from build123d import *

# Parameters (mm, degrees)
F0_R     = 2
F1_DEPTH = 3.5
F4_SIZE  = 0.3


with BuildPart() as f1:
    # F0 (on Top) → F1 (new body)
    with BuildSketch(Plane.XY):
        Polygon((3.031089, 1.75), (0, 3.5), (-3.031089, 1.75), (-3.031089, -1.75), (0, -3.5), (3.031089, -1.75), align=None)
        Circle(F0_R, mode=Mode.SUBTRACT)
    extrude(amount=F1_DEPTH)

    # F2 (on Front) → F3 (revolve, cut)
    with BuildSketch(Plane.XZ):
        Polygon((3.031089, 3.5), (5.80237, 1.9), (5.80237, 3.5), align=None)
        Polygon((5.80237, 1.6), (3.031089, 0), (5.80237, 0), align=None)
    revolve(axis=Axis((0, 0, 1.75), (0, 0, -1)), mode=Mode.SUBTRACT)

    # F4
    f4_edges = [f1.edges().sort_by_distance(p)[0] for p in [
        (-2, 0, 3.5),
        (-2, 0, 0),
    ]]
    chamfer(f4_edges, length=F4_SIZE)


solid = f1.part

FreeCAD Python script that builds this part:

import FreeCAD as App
import Part
import Sketcher

V = App.Vector
Q = App.Units.Quantity


def edges_at(feature, points):
    """Names of the edges that pass closest to the given points."""
    edges = feature.Shape.Edges
    near = lambda p: min(range(len(edges)), key=lambda i: edges[i].distToShape(Part.Vertex(*p))[0])
    return sorted({f"Edge{near(p) + 1}" for p in points})


def add_polygon(sketch, points):
    """Adds a closed chain of lines whose ends are joined by coincident constraints."""
    first, n = sketch.GeometryCount, len(points)
    for a, b in zip(points, points[1:] + points[:1]):
        sketch.addGeometry(Part.LineSegment(App.Vector(*a, 0), App.Vector(*b, 0)), False)
    for i in range(n):
        sketch.addConstraint(Sketcher.Constraint("Coincident", first + i, 2, first + (i + 1) % n, 1))

doc = App.newDocument("Part")
body = doc.addObject("PartDesign::Body", "Body")

sketch1 = body.newObject("Sketcher::SketchObject", "Sketch")
sketch1.AttachmentSupport = (doc.getObject("XY_Plane"), [""])
sketch1.MapMode = "FlatFace"
add_polygon(sketch1, [(3, 1.8), (0, 3.5), (-3, 1.8), (-3, -1.8), (0, -3.5), (3, -1.8)])
sketch1.addGeometry(Part.Circle(V(0, 0, 0), V(0, 0, 1), 2), False)
sketch1.addConstraint(Sketcher.Constraint("Vertical", 2))
sketch1.addConstraint(Sketcher.Constraint("Vertical", 5))
sketch1.addConstraint(Sketcher.Constraint("Coincident", 6, 3, -1, 1))
sketch1.addConstraint(Sketcher.Constraint("Symmetric", 0, 2, 3, 2, -1, 1))
sketch1.addConstraint(Sketcher.Constraint("Symmetric", 1, 2, 4, 2, -1, 1))
sketch1.addConstraint(Sketcher.Constraint("PointOnObject", 0, 2, -2))
sketch1.addConstraint(Sketcher.Constraint("Parallel", 0, 3))
sketch1.addConstraint(Sketcher.Constraint("Horizontal", 2, 2, 4, 2))
sketch1.addConstraint(Sketcher.Constraint("Diameter", 6, 4.0))
sketch1.addConstraint(Sketcher.Constraint("Angle", 0, Q("150.000001 deg")))
sketch1.addConstraint(Sketcher.Constraint("DistanceY", 2, 2, 2, 1, 3.5))
sketch1.addConstraint(Sketcher.Constraint("DistanceY", 3, 2, 0, 2, 7.0))
pad1 = body.newObject("PartDesign::Pad", "Pad")
pad1.Profile = sketch1
pad1.Length = 3.5

sketch2 = body.newObject("Sketcher::SketchObject", "Sketch001")
sketch2.AttachmentSupport = (doc.getObject("XZ_Plane"), [""])
sketch2.MapMode = "FlatFace"
add_polygon(sketch2, [(3, 3.5), (5.8, 1.9), (5.8, 3.5)])
add_polygon(sketch2, [(5.8, 1.6), (3, 0), (5.8, 0)])
sketch2.addConstraint(Sketcher.Constraint("Vertical", 1))
sketch2.addConstraint(Sketcher.Constraint("Horizontal", 2))
sketch2.addConstraint(Sketcher.Constraint("Horizontal", 4))
sketch2.addConstraint(Sketcher.Constraint("Vertical", 5))
sketch2.addConstraint(Sketcher.Constraint("PointOnObject", 3, 2, -1))
sketch2.addConstraint(Sketcher.Constraint("Vertical", 2, 2, 3, 2))
sketch2.addConstraint(Sketcher.Constraint("Vertical", 1, 2, 4, 2))
sketch2.addConstraint(Sketcher.Constraint("Equal", 1, 5))
sketch2.addConstraint(Sketcher.Constraint("Angle", 0, Q("-30.000003 deg")))
sketch2.addConstraint(Sketcher.Constraint("DistanceY", 1, 1, 1, 2, 1.6))
sketch2.addConstraint(Sketcher.Constraint("DistanceY", -1, 1, 0, 2, 1.9))
sketch2.addConstraint(Sketcher.Constraint("DistanceX", -1, 1, 0, 2, 5.80237))
groove = body.newObject("PartDesign::Groove", "Groove")
groove.Profile = sketch2
groove.ReferenceAxis = (sketch2, ["V_Axis"])
groove.Angle = 360
doc.recompute()

chamfer = body.newObject("PartDesign::Chamfer", "Chamfer")
chamfer.Base = (groove, edges_at(groove, [(-2, 0, 3.5), (-2, 0, 0)]))
chamfer.Size = 0.3

doc.recompute()
